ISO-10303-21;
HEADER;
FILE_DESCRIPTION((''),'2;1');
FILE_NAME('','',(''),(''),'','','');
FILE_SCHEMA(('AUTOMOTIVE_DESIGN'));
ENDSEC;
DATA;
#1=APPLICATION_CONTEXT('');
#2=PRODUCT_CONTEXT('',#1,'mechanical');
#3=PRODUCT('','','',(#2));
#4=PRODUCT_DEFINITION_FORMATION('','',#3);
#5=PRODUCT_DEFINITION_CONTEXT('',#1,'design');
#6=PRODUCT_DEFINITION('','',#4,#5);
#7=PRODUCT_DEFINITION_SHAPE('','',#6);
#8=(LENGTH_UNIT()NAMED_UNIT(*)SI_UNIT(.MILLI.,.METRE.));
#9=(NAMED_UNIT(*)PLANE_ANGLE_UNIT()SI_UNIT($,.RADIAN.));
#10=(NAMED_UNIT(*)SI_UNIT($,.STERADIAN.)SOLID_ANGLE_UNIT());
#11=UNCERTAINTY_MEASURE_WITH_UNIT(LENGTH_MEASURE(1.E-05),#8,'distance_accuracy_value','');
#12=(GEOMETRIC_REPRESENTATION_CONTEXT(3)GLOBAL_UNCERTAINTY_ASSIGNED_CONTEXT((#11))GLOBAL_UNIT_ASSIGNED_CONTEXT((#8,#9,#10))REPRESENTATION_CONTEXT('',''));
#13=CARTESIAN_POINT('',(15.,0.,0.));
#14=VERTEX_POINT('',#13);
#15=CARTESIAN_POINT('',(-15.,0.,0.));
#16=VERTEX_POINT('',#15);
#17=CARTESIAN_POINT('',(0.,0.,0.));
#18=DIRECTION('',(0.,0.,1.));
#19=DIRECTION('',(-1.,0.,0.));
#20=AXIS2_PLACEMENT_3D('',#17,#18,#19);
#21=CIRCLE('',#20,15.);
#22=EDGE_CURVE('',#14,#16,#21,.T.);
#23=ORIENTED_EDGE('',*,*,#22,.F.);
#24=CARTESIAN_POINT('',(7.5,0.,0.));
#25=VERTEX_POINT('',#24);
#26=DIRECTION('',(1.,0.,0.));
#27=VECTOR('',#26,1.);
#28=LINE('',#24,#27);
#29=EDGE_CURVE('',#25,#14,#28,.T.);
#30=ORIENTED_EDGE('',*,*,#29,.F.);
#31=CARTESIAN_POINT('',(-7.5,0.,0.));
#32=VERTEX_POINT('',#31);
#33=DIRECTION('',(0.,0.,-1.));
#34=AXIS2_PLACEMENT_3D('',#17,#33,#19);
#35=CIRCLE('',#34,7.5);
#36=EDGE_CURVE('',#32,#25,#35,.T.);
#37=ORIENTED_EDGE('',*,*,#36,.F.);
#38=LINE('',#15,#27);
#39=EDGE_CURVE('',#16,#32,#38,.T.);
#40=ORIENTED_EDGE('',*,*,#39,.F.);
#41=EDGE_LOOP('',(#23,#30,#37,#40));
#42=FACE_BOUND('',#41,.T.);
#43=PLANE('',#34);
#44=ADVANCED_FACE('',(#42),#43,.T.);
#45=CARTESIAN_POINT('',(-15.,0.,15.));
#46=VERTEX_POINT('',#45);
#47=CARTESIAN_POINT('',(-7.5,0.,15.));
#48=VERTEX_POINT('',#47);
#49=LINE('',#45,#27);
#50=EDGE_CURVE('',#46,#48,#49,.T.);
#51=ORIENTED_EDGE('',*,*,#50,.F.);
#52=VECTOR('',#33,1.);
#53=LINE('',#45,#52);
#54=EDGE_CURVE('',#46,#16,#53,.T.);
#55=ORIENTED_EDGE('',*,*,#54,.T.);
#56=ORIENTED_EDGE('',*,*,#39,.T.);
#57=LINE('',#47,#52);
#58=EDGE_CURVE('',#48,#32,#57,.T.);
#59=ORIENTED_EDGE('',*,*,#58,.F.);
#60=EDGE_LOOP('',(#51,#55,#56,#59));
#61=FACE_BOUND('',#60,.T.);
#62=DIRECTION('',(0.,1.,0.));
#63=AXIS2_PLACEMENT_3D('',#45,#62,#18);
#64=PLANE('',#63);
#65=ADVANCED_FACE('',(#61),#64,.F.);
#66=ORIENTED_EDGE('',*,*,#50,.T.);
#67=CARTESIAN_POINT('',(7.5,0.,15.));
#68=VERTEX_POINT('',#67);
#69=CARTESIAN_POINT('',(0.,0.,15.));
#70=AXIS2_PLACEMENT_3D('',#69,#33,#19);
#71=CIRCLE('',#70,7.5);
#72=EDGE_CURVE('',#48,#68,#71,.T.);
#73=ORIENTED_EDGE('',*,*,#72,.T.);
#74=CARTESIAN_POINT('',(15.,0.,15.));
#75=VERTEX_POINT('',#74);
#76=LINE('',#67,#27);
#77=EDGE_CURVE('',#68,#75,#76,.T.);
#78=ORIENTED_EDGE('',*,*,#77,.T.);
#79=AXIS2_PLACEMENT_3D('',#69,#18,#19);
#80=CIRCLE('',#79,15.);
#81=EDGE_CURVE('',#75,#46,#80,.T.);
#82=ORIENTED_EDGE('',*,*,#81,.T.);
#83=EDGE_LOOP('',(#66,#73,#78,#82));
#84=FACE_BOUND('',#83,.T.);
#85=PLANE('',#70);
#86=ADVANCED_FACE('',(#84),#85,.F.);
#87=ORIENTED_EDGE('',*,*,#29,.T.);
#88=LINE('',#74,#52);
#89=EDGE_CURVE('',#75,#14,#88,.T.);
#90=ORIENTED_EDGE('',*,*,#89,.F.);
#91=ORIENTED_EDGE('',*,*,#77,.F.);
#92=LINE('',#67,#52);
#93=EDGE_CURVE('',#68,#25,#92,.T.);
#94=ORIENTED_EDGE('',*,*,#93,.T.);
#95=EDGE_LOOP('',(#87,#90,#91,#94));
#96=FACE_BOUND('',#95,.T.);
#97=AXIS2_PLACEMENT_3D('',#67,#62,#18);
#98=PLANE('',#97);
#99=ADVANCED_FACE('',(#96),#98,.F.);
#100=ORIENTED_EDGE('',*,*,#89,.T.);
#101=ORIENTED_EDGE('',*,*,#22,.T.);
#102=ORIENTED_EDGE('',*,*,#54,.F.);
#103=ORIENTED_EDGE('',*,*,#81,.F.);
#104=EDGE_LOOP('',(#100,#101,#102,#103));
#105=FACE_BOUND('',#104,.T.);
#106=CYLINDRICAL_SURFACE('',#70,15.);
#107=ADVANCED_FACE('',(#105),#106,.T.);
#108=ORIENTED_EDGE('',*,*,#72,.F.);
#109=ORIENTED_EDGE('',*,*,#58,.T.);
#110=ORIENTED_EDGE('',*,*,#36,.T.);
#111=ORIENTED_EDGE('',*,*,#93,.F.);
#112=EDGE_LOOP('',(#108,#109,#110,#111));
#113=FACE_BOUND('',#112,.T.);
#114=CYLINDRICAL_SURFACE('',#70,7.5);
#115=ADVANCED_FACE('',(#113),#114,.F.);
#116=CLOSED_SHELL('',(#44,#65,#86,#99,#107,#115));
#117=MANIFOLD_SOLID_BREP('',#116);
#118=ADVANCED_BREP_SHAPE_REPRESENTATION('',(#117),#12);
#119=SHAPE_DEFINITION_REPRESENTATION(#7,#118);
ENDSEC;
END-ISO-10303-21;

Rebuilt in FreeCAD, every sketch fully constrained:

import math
import FreeCAD as App
import Part
import Sketcher
from FreeCAD import Vector

doc = App.newDocument("Part")
body = doc.addObject("PartDesign::Body", "Body")

sketch1 = body.newObject("Sketcher::SketchObject", "Sketch")
sketch1.AttachmentSupport = (doc.getObject("XY_Plane"), [""])
sketch1.MapMode = "FlatFace"
sketch1.addGeometry([
    Part.LineSegment(Vector(-15, 0, 0), Vector(-8, 0, 0)),
    Part.ArcOfCircle(Part.Circle(Vector(0, 0, 0), Vector(0, 0, 1), 8), math.radians(0), math.radians(180)),
    Part.LineSegment(Vector(8, 0, 0), Vector(15, 0, 0)),
    Part.ArcOfCircle(Part.Circle(Vector(0, 0, 0), Vector(0, 0, 1), 15), math.radians(0), math.radians(180)),
], False)
sketch1.addConstraint([
    Sketcher.Constraint("Coincident", 0, 2, 1, 2),
    Sketcher.Constraint("Coincident", 1, 1, 2, 1),
    Sketcher.Constraint("Coincident", 2, 2, 3, 1),
    Sketcher.Constraint("Coincident", 3, 2, 0, 1),
    Sketcher.Constraint("Horizontal", 0),
    Sketcher.Constraint("Horizontal", 2),
    Sketcher.Constraint("Coincident", 1, 3, -1, 1),
    Sketcher.Constraint("Coincident", 3, 3, -1, 1),
    Sketcher.Constraint("PointOnObject", 0, 2, -1),
    Sketcher.Constraint("PointOnObject", 1, 1, -1),
    Sketcher.Constraint("Radius", 3, 15.0),
    Sketcher.Constraint("Radius", 1, 7.5),
])
pad1 = body.newObject("PartDesign::Pad", "Pad")
pad1.Profile = sketch1
pad1.Length = 15

doc.recompute()
